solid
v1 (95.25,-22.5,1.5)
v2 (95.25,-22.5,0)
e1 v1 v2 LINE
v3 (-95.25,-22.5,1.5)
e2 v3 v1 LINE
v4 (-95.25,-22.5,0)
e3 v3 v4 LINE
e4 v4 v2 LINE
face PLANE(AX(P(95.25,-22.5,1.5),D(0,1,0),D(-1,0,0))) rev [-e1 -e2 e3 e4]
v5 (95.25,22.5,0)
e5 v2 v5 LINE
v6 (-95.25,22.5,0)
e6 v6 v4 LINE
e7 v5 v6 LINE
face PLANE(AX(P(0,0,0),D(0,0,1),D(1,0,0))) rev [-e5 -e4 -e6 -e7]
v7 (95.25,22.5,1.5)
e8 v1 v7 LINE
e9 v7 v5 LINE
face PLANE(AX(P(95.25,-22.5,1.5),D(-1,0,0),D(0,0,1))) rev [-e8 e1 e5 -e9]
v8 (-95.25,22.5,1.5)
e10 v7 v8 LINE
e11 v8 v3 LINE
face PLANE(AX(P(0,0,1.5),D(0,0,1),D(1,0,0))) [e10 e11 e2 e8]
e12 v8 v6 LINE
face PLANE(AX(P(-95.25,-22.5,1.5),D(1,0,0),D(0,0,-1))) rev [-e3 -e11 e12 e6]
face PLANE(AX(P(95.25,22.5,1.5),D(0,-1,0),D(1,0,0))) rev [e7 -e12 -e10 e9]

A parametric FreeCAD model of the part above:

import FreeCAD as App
import Part
import Sketcher
Q = App.Units.Quantity


def add_polygon(sketch, points):
    """Adds a closed chain of lines whose ends are joined by coincident constraints."""
    first, n = sketch.GeometryCount, len(points)
    for a, b in zip(points, points[1:] + points[:1]):
        sketch.addGeometry(Part.LineSegment(App.Vector(*a, 0), App.Vector(*b, 0)), False)
    for i in range(n):
        sketch.addConstraint(Sketcher.Constraint("Coincident", first + i, 2, first + (i + 1) % n, 1))

doc = App.newDocument("Part")
params = doc.addObject("Spreadsheet::Sheet", "Params")
for row, (alias, value) in enumerate([
    ("sketch1_height", "45 mm"),
    ("sketch1_width", "190.5 mm"),
    ("pad1_length", "1.5 mm"),
], start=1):
    params.set(f"A{row}", alias)
    params.set(f"B{row}", "=" + value)
    params.setAlias(f"B{row}", alias)

body = doc.addObject("PartDesign::Body", "Body")

# Sketch on XY plane
sketch1 = body.newObject("Sketcher::SketchObject", "Sketch")
sketch1.AttachmentSupport = (doc.getObject("XY_Plane"), [""])
sketch1.MapMode = "FlatFace"
add_polygon(sketch1, [(-95, 22), (-95, -22), (95, -22), (95, 22)])  # lines 0-3
sketch1.addConstraint([
    Sketcher.Constraint("Vertical", 0),
    Sketcher.Constraint("Horizontal", 1),
    Sketcher.Constraint("Vertical", 2),
    Sketcher.Constraint("Horizontal", 3),
    Sketcher.Constraint("Symmetric", 0, 2, 2, 2, -1, 1),
    Sketcher.Constraint("DistanceY", 0, 2, 0, 1, Q("45 mm")),
    Sketcher.Constraint("DistanceX", 1, 1, 1, 2, Q("190.5 mm")),
])
sketch1.setExpression("Constraints[9]", "Params.sketch1_height")
sketch1.setExpression("Constraints[10]", "Params.sketch1_width")
pad1 = body.newObject("PartDesign::Pad", "Pad")
pad1.Profile = sketch1
pad1.setExpression("Length", "Params.pad1_length")

doc.recompute()
